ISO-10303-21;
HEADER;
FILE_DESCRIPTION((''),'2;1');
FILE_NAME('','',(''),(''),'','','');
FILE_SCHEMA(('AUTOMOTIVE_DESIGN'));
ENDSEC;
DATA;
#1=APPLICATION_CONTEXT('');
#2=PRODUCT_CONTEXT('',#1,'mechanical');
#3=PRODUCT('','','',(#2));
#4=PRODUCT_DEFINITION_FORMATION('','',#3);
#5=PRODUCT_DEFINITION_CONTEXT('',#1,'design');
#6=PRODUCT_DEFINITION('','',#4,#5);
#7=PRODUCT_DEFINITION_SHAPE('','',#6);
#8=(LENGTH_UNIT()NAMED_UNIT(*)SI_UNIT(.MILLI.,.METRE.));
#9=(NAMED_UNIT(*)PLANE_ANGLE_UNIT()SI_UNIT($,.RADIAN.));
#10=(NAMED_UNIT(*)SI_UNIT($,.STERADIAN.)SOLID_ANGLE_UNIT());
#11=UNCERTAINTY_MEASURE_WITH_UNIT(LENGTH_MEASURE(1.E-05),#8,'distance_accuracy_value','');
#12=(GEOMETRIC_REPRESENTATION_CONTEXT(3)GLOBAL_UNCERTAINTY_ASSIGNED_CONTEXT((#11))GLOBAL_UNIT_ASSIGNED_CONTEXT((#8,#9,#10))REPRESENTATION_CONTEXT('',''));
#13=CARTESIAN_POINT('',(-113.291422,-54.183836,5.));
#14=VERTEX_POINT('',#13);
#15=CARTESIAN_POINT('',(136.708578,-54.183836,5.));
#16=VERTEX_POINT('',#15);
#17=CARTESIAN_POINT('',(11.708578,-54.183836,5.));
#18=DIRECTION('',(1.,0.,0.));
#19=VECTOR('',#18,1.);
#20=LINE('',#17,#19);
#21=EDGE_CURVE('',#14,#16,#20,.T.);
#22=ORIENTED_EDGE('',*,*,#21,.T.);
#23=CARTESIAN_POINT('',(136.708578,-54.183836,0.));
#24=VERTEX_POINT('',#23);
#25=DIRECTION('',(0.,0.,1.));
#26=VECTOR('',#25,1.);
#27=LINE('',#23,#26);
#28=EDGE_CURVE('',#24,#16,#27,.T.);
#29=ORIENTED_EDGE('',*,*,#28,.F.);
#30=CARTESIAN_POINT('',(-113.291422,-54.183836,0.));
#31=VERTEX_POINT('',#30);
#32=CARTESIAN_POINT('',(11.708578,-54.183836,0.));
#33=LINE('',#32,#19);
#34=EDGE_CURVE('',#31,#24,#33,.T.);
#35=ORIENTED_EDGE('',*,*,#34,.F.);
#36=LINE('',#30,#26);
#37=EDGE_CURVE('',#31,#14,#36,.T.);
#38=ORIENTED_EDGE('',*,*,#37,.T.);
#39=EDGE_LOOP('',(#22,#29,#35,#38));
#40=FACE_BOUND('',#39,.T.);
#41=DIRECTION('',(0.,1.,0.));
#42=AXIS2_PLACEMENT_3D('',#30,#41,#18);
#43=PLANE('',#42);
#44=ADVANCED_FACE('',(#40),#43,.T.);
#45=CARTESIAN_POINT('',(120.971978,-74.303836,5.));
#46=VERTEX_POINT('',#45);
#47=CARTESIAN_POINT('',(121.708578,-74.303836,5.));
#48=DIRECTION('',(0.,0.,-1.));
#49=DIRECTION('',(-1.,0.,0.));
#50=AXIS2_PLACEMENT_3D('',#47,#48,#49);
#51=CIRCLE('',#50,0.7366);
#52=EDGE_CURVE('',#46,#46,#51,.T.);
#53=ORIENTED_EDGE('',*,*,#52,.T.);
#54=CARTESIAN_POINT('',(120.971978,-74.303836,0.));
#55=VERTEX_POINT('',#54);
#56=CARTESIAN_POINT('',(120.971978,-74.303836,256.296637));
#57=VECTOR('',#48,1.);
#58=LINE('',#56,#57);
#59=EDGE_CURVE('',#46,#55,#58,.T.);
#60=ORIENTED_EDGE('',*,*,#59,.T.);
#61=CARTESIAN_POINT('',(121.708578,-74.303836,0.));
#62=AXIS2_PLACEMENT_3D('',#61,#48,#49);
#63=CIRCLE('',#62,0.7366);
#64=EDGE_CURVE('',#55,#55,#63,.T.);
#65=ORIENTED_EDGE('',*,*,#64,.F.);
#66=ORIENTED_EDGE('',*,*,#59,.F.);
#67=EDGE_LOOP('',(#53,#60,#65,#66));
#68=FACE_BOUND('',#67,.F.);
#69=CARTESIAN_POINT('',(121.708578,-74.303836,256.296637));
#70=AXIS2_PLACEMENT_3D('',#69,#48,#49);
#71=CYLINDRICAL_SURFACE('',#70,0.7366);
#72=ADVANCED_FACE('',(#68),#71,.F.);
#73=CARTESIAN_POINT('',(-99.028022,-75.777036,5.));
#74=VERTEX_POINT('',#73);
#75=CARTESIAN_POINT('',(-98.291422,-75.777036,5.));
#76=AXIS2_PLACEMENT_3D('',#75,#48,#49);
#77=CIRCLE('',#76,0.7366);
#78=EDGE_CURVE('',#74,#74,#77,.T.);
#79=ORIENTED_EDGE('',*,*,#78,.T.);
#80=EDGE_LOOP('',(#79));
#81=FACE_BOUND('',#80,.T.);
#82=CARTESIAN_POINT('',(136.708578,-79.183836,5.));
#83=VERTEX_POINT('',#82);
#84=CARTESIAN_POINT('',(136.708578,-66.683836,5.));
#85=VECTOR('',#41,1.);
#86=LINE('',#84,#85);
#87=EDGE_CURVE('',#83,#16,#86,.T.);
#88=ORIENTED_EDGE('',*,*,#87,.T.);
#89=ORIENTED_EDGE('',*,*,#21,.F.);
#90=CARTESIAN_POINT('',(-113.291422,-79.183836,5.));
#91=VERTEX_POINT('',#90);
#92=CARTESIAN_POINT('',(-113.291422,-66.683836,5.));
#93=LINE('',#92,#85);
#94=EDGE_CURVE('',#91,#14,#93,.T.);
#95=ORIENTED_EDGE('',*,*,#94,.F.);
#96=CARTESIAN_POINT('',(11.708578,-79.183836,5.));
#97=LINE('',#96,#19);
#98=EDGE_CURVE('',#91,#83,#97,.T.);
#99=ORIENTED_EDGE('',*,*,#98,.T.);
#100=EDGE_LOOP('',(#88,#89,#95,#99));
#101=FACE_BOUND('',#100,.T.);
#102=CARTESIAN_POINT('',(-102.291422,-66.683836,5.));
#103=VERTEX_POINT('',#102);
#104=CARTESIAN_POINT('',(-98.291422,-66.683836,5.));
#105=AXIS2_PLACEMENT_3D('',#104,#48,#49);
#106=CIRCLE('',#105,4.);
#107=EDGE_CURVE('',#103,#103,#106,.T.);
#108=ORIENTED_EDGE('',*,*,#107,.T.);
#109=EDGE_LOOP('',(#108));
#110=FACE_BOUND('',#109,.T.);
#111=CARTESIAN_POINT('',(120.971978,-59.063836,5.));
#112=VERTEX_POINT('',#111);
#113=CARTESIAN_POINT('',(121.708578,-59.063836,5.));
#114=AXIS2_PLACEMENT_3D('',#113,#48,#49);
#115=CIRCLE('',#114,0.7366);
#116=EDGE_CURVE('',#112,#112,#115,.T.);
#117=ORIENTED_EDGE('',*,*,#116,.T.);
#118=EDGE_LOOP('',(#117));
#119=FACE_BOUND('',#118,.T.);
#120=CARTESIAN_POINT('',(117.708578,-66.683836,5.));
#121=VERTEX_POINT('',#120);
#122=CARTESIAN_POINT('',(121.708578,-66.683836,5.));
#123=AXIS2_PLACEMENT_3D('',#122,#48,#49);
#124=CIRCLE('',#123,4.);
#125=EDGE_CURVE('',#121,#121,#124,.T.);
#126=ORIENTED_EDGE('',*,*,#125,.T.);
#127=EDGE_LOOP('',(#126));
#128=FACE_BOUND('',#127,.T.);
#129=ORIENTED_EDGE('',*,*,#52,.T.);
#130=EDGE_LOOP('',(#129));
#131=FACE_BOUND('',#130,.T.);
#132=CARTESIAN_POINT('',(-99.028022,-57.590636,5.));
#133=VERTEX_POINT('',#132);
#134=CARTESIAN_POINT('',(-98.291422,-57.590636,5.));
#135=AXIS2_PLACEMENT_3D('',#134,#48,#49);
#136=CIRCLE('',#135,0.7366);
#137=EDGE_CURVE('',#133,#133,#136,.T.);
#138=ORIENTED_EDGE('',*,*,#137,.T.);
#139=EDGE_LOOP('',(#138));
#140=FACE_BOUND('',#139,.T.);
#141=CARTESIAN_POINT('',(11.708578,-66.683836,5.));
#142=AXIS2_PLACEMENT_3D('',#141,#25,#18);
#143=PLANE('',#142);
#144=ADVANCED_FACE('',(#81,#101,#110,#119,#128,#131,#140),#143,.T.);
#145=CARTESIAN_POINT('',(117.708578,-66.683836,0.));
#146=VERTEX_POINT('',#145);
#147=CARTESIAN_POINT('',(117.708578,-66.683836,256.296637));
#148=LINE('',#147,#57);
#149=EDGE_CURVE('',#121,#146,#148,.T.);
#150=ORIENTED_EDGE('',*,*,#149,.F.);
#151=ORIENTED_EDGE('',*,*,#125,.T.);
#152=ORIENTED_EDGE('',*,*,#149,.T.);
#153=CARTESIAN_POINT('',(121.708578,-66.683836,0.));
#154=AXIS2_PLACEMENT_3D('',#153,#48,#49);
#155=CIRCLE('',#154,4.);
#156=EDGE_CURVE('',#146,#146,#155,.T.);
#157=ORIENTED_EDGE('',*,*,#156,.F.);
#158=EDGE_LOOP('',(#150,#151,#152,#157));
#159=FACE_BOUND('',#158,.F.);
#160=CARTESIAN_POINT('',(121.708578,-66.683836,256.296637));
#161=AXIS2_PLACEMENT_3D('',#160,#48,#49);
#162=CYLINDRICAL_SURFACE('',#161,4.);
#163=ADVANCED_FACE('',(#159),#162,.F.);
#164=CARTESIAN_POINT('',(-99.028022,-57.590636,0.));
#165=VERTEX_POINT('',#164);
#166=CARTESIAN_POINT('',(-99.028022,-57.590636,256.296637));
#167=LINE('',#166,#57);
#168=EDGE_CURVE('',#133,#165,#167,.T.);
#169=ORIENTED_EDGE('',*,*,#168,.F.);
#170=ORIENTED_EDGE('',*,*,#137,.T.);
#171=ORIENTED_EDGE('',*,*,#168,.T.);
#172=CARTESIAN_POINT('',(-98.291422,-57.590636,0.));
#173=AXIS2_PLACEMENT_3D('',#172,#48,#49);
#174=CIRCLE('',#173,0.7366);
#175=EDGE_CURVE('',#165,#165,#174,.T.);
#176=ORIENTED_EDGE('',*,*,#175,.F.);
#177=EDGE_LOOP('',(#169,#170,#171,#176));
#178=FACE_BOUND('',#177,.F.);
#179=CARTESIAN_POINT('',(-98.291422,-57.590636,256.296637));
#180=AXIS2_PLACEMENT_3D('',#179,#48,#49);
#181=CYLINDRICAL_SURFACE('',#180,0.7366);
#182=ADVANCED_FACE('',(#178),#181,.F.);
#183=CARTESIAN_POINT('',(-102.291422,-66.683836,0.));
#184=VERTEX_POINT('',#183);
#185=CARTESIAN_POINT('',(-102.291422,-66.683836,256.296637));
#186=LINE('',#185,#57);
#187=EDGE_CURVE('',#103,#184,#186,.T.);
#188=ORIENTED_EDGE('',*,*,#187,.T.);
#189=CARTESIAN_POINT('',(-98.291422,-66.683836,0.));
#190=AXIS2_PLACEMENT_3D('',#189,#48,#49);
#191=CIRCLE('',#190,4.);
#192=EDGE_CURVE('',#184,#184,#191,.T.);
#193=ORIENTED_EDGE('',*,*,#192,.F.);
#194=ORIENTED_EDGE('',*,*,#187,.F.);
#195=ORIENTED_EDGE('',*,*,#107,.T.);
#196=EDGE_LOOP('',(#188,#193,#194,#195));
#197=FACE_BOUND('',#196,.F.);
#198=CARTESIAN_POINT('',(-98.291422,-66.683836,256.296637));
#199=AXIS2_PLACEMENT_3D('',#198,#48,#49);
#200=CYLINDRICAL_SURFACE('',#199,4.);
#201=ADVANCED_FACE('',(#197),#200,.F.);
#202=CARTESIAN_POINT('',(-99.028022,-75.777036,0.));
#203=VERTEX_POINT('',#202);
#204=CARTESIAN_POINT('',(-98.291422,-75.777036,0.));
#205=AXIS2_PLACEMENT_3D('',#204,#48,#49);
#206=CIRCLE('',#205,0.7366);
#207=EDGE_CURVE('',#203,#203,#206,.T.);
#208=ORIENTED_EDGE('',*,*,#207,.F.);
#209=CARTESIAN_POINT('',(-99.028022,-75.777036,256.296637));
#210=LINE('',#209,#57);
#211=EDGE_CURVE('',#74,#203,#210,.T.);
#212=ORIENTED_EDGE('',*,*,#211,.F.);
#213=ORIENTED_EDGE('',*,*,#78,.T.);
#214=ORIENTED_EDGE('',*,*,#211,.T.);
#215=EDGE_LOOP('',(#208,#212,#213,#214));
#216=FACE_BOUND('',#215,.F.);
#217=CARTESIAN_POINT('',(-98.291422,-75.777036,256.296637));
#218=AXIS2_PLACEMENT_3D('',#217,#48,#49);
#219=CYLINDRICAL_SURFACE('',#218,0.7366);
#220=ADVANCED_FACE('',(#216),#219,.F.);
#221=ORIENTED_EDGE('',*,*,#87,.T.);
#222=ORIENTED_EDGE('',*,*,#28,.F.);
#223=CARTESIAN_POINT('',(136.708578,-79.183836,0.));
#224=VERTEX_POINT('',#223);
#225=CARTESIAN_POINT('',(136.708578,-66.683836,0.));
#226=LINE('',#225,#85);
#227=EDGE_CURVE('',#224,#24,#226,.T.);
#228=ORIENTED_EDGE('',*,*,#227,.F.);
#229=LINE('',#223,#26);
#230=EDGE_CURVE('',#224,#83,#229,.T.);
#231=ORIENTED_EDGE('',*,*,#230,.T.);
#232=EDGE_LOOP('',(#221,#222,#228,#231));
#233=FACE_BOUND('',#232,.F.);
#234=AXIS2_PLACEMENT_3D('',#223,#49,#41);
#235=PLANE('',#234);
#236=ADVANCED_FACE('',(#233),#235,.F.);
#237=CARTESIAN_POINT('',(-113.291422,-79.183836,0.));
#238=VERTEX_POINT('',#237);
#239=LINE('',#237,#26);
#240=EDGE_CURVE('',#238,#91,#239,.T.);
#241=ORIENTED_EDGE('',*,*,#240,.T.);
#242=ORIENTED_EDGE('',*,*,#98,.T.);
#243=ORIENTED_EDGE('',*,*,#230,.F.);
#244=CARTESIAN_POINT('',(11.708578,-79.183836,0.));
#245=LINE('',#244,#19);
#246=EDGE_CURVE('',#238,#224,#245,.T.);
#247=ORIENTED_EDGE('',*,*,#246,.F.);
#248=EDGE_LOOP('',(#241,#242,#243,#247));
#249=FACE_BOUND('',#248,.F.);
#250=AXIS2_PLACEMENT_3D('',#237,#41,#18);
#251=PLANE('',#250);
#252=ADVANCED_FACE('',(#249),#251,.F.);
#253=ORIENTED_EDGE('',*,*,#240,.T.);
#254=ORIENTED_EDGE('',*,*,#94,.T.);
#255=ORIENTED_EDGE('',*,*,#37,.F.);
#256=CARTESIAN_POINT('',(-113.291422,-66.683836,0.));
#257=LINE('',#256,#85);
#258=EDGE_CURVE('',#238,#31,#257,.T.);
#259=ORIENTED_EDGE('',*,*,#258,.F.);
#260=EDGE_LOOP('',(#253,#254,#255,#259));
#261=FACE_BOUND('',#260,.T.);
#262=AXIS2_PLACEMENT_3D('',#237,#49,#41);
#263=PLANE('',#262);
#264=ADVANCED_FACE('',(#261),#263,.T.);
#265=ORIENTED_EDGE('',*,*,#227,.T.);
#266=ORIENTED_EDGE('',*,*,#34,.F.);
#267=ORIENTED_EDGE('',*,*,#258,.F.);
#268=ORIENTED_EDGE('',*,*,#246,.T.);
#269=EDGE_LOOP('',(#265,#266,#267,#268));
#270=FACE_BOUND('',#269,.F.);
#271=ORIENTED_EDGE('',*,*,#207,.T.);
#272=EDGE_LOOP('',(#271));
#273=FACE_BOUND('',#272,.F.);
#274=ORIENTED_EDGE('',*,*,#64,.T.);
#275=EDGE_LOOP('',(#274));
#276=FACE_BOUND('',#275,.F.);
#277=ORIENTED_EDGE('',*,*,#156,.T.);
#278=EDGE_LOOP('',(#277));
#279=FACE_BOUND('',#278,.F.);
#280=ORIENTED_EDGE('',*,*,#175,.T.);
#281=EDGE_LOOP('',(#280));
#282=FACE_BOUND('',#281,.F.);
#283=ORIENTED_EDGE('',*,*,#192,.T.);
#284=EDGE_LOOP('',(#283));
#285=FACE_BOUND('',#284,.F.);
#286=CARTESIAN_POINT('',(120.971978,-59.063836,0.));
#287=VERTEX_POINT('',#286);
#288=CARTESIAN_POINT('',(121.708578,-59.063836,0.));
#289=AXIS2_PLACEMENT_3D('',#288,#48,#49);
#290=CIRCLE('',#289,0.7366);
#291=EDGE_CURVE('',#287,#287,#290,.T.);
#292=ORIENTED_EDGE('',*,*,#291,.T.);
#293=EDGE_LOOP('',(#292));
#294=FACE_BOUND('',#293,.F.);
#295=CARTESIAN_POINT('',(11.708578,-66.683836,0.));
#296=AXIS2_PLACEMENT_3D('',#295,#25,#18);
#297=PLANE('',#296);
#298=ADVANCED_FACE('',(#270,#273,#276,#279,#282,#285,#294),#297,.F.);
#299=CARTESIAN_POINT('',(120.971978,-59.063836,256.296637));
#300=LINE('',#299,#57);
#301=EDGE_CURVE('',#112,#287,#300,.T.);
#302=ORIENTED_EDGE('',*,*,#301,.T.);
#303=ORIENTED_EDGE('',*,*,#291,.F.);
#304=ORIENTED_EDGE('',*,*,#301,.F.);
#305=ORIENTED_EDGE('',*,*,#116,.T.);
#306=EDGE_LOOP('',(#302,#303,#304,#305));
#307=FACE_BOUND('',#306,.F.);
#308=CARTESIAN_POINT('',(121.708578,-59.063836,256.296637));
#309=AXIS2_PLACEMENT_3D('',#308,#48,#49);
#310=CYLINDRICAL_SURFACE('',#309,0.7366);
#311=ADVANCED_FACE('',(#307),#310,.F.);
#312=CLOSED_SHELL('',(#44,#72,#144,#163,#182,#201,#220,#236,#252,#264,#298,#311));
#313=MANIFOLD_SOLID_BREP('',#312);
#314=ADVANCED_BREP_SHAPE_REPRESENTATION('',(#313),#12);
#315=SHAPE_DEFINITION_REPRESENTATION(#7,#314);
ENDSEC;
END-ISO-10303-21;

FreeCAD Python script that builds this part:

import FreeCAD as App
import Part
import Sketcher

V = App.Vector
Q = App.Units.Quantity


def add_polygon(sketch, points):
    """Adds a closed chain of lines whose ends are joined by coincident constraints."""
    first, n = sketch.GeometryCount, len(points)
    for a, b in zip(points, points[1:] + points[:1]):
        sketch.addGeometry(Part.LineSegment(App.Vector(*a, 0), App.Vector(*b, 0)), False)
    for i in range(n):
        sketch.addConstraint(Sketcher.Constraint("Coincident", first + i, 2, first + (i + 1) % n, 1))

doc = App.newDocument("Part")
body = doc.addObject("PartDesign::Body", "Body")

# Sketch on XY plane
sketch1 = doc.addObject("Sketcher::SketchObject", "Sketch")
body.addObject(sketch1)
sketch1.AttachmentSupport = (doc.XY_Plane, [""])
sketch1.MapMode = "FlatFace"
add_polygon(sketch1, [(-113.291422, -54.183836), (-113.291422, -79.183836), (136.708578, -79.183836), (136.708578, -54.183836)])  # lines 0-3
sketch1.addConstraint([
    Sketcher.Constraint("Vertical", 0),
    Sketcher.Constraint("Horizontal", 1),
    Sketcher.Constraint("Vertical", 2),
    Sketcher.Constraint("Horizontal", 3),
    Sketcher.Constraint("DistanceX", 1, 1, 1, 2, Q("250 mm")),
    Sketcher.Constraint("DistanceY", 0, 2, 0, 1, Q("25 mm")),
    Sketcher.Constraint("DistanceX", 0, 2, -1, 1, Q("113.291422 mm")),
    Sketcher.Constraint("DistanceY", 0, 2, -1, 1, Q("79.183836 mm")),
])
pad1 = doc.addObject("PartDesign::Pad", "Pad")
body.addObject(pad1)
pad1.Profile = sketch1
pad1.Length = 5

# Sketch on XY plane
sketch2 = doc.addObject("Sketcher::SketchObject", "Sketch001")
body.addObject(sketch2)
sketch2.AttachmentSupport = (doc.XY_Plane, [""])
sketch2.MapMode = "FlatFace"
sketch2.AttachmentOffset = App.Placement(V(0, 0, 5), App.Rotation())
sketch2.addGeometry(Part.Circle(V(-98.291422, -57.590636, 0), V(0, 0, 1), 0.7366), False)
sketch2.addConstraint([
    Sketcher.Constraint("Diameter", 0, Q("1.4732 mm")),
    Sketcher.Constraint("DistanceX", 0, 3, -1, 1, Q("98.291422 mm")),
    Sketcher.Constraint("DistanceY", 0, 3, -1, 1, Q("57.590636 mm")),
])
doc.recompute()
hole = doc.addObject("PartDesign::Hole", "Hole")
body.addObject(hole)
hole.Profile = sketch2
hole.ThreadType = "None"
hole.Diameter = 1.4732
hole.DepthType = "ThroughAll"

# Sketch on XY plane
sketch3 = doc.addObject("Sketcher::SketchObject", "Sketch002")
body.addObject(sketch3)
sketch3.AttachmentSupport = (doc.XY_Plane, [""])
sketch3.MapMode = "FlatFace"
sketch3.AttachmentOffset = App.Placement(V(0, 0, 5), App.Rotation())
sketch3.addGeometry(Part.Circle(V(-98.291422, -75.777036, 0), V(0, 0, 1), 0.7366), False)
sketch3.addConstraint([
    Sketcher.Constraint("Diameter", 0, Q("1.4732 mm")),
    Sketcher.Constraint("DistanceX", 0, 3, -1, 1, Q("98.291422 mm")),
    Sketcher.Constraint("DistanceY", 0, 3, -1, 1, Q("75.777036 mm")),
])
doc.recompute()
hole2 = doc.addObject("PartDesign::Hole", "Hole001")
body.addObject(hole2)
hole2.Profile = sketch3
hole2.ThreadType = "None"
hole2.Diameter = 1.4732
hole2.DepthType = "ThroughAll"

# Sketch on XY plane
sketch4 = doc.addObject("Sketcher::SketchObject", "Sketch003")
body.addObject(sketch4)
sketch4.AttachmentSupport = (doc.XY_Plane, [""])
sketch4.MapMode = "FlatFace"
sketch4.AttachmentOffset = App.Placement(V(0, 0, 5), App.Rotation())
sketch4.addGeometry([
    Part.Circle(V(121.708578, -59.063836, 0), V(0, 0, 1), 0.7366),
    Part.Circle(V(121.708578, -74.303836, 0), V(0, 0, 1), 0.7366),
], False)
sketch4.addConstraint([
    Sketcher.Constraint("Equal", 0, 1),
    Sketcher.Constraint("Vertical", 0, 3, 1, 3),
    Sketcher.Constraint("Diameter", 0, Q("1.4732 mm")),
    Sketcher.Constraint("DistanceY", 1, 3, 0, 3, Q("15.24 mm")),
    Sketcher.Constraint("DistanceX", -1, 1, 0, 3, Q("121.708578 mm")),
    Sketcher.Constraint("DistanceY", 0, 3, -1, 1, Q("59.063836 mm")),
])
doc.recompute()
hole3 = doc.addObject("PartDesign::Hole", "Hole002")
body.addObject(hole3)
hole3.Profile = sketch4
hole3.ThreadType = "None"
hole3.Diameter = 1.4732
hole3.DepthType = "ThroughAll"

# Sketch on XY plane
sketch5 = doc.addObject("Sketcher::SketchObject", "Sketch004")
body.addObject(sketch5)
sketch5.AttachmentSupport = (doc.XY_Plane, [""])
sketch5.MapMode = "FlatFace"
sketch5.AttachmentOffset = App.Placement(V(0, 0, 5), App.Rotation())
sketch5.addGeometry([
    Part.Circle(V(-98.291422, -66.683836, 0), V(0, 0, 1), 4),
    Part.Circle(V(121.708578, -66.683836, 0), V(0, 0, 1), 4),
], False)
sketch5.addConstraint([
    Sketcher.Constraint("Equal", 0, 1),
    Sketcher.Constraint("Horizontal", 0, 3, 1, 3),
    Sketcher.Constraint("Diameter", 0, Q("8 mm")),
    Sketcher.Constraint("DistanceX", 0, 3, 1, 3, Q("220 mm")),
    Sketcher.Constraint("DistanceX", 0, 3, -1, 1, Q("98.291422 mm")),
    Sketcher.Constraint("DistanceY", 0, 3, -1, 1, Q("66.683836 mm")),
])
doc.recompute()
hole4 = doc.addObject("PartDesign::Hole", "Hole003")
body.addObject(hole4)
hole4.Profile = sketch5
hole4.ThreadType = "None"
hole4.Diameter = 8
hole4.DepthType = "ThroughAll"

doc.recompute()
